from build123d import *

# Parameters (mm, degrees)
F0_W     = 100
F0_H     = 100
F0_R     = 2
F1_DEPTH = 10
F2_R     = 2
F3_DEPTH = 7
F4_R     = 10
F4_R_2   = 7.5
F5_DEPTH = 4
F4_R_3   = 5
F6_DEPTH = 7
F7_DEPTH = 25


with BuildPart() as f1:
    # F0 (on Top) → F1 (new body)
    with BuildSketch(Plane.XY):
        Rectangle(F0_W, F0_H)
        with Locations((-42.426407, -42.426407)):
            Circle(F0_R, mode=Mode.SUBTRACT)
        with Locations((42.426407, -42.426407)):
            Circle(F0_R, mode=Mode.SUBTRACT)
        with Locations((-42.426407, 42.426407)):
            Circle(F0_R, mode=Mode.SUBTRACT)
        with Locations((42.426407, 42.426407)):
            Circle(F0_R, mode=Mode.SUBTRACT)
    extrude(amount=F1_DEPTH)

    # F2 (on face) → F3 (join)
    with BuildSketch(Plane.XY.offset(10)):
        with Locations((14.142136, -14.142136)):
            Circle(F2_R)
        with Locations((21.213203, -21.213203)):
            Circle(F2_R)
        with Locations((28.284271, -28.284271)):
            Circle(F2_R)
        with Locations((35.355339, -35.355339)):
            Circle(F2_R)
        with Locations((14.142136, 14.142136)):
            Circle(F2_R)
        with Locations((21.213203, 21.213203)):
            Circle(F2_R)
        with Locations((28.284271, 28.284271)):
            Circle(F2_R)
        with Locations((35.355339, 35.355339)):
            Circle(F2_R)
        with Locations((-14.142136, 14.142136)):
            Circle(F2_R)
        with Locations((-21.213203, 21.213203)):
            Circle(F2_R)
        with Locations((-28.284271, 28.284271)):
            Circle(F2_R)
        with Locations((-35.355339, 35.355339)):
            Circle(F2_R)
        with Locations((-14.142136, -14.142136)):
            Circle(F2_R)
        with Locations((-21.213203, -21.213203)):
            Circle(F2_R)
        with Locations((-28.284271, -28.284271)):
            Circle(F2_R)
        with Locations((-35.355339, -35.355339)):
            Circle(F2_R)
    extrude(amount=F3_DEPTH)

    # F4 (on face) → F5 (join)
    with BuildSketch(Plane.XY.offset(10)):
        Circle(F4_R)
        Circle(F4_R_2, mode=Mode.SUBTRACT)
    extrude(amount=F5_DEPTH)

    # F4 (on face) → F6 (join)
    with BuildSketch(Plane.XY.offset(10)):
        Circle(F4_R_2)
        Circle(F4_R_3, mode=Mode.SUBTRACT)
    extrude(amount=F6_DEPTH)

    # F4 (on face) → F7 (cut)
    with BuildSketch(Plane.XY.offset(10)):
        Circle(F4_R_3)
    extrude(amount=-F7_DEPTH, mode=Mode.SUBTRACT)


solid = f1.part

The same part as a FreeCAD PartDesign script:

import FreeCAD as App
import Part
import Sketcher


def add_polygon(sketch, points):
    """Adds a closed chain of lines whose ends are joined by coincident constraints."""
    first, n = sketch.GeometryCount, len(points)
    for a, b in zip(points, points[1:] + points[:1]):
        sketch.addGeometry(Part.LineSegment(App.Vector(*a, 0), App.Vector(*b, 0)), False)
    for i in range(n):
        sketch.addConstraint(Sketcher.Constraint("Coincident", first + i, 2, first + (i + 1) % n, 1))

doc = App.newDocument("Part")
params = doc.addObject("Spreadsheet::Sheet", "Params")
for row, (alias, value) in enumerate([
    ("sketch1_diameter", "4 mm"),
    ("sketch1_width", "100 mm"),
    ("pad1_length", "10 mm"),
    ("sketch2_diameter", "4 mm"),
    ("pad2_length", "7 mm"),
    ("sketch3_diameter", "20 mm"),
    ("sketch3_diameter2", "15 mm"),
    ("pad3_length", "4 mm"),
    ("sketch4_diameter", "15 mm"),
    ("sketch4_diameter2", "10 mm"),
    ("pad4_length", "7 mm"),
    ("sketch5_diameter", "10 mm"),
    ("pocket1_length", "25 mm"),
], start=1):
    params.set(f"A{row}", alias)
    params.set(f"B{row}", "=" + value)
    params.setAlias(f"B{row}", alias)

body = doc.addObject("PartDesign::Body", "Body")

sketch1 = body.newObject("Sketcher::SketchObject", "Sketch")
sketch1.AttachmentSupport = (doc.getObject("XY_Plane"), [""])
sketch1.MapMode = "FlatFace"
add_polygon(sketch1, [(-50, 50), (-50, -50), (50, -50), (50, 50)])
sketch1.addGeometry(Part.Circle(App.Vector(-42.426407, -42.426407, 0), App.Vector(0, 0, 1), 2), False)
sketch1.addGeometry(Part.Circle(App.Vector(42.426407, -42.426407, 0), App.Vector(0, 0, 1), 2), False)
sketch1.addGeometry(Part.Circle(App.Vector(-42.426407, 42.426407, 0), App.Vector(0, 0, 1), 2), False)
sketch1.addGeometry(Part.Circle(App.Vector(42.426407, 42.426407, 0), App.Vector(0, 0, 1), 2), False)
sketch1.addConstraint([
    Sketcher.Constraint("Vertical", 0),
    Sketcher.Constraint("Horizontal", 1),
    Sketcher.Constraint("Vertical", 2),
    Sketcher.Constraint("Horizontal", 3),
    Sketcher.Constraint("Equal", 4, 5),
    Sketcher.Constraint("Equal", 5, 6),
    Sketcher.Constraint("Equal", 6, 7),
    Sketcher.Constraint("Symmetric", 5, 3, 6, 3, -1, 1),
    Sketcher.Constraint("Symmetric", 4, 3, 7, 3, -1, 1),
    Sketcher.Constraint("Symmetric", 0, 2, 2, 2, -1, 1),
    Sketcher.Constraint("Symmetric", 4, 3, 5, 3, -2),
    Sketcher.Constraint("Equal", 3, 0),
    Sketcher.Constraint("Diameter", 4, 4.0),
    Sketcher.Constraint("DistanceX", 1, 1, 1, 2, 100.0),
    Sketcher.Constraint("DistanceX", 4, 3, -1, 1, 42.426407),
    Sketcher.Constraint("DistanceY", 4, 3, -1, 1, 42.426407),
])
sketch1.setExpression("Constraints[16]", "Params.sketch1_diameter")
sketch1.setExpression("Constraints[17]", "Params.sketch1_width")
pad1 = body.newObject("PartDesign::Pad", "Pad")
pad1.Profile = sketch1
pad1.setExpression("Length", "Params.pad1_length")

sketch2 = body.newObject("Sketcher::SketchObject", "Sketch001")
sketch2.AttachmentSupport = (doc.getObject("XY_Plane"), [""])
sketch2.MapMode = "FlatFace"
sketch2.AttachmentOffset = App.Placement(App.Vector(0, 0, 10), App.Rotation())
sketch2.addGeometry([
    Part.Circle(App.Vector(14.142136, -14.142136, 0), App.Vector(0, 0, 1), 2),
    Part.Circle(App.Vector(21.213203, -21.213203, 0), App.Vector(0, 0, 1), 2),
    Part.Circle(App.Vector(28.284271, -28.284271, 0), App.Vector(0, 0, 1), 2),
    Part.Circle(App.Vector(35.355339, -35.355339, 0), App.Vector(0, 0, 1), 2),
    Part.Circle(App.Vector(14.142136, 14.142136, 0), App.Vector(0, 0, 1), 2),
    Part.Circle(App.Vector(21.213203, 21.213203, 0), App.Vector(0, 0, 1), 2),
    Part.Circle(App.Vector(28.284271, 28.284271, 0), App.Vector(0, 0, 1), 2),
    Part.Circle(App.Vector(35.355339, 35.355339, 0), App.Vector(0, 0, 1), 2),
    Part.Circle(App.Vector(-14.142136, 14.142136, 0), App.Vector(0, 0, 1), 2),
    Part.Circle(App.Vector(-21.213203, 21.213203, 0), App.Vector(0, 0, 1), 2),
    Part.Circle(App.Vector(-28.284271, 28.284271, 0), App.Vector(0, 0, 1), 2),
    Part.Circle(App.Vector(-35.355339, 35.355339, 0), App.Vector(0, 0, 1), 2),
    Part.Circle(App.Vector(-14.142136, -14.142136, 0), App.Vector(0, 0, 1), 2),
    Part.Circle(App.Vector(-21.213203, -21.213203, 0), App.Vector(0, 0, 1), 2),
    Part.Circle(App.Vector(-28.284271, -28.284271, 0), App.Vector(0, 0, 1), 2),
    Part.Circle(App.Vector(-35.355339, -35.355339, 0), App.Vector(0, 0, 1), 2),
], False)
sketch2.addConstraint([
    Sketcher.Constraint("Equal", 0, 1),
    Sketcher.Constraint("Equal", 1, 2),
    Sketcher.Constraint("Equal", 2, 3),
    Sketcher.Constraint("Equal", 3, 4),
    Sketcher.Constraint("Equal", 4, 5),
    Sketcher.Constraint("Equal", 5, 6),
    Sketcher.Constraint("Equal", 6, 7),
    Sketcher.Constraint("Equal", 7, 8),
    Sketcher.Constraint("Equal", 8, 9),
    Sketcher.Constraint("Equal", 9, 10),
    Sketcher.Constraint("Equal", 10, 11),
    Sketcher.Constraint("Equal", 11, 12),
    Sketcher.Constraint("Equal", 12, 13),
    Sketcher.Constraint("Equal", 13, 14),
    Sketcher.Constraint("Equal", 14, 15),
    Sketcher.Constraint("Symmetric", 0, 3, 8, 3, -1, 1),
    Sketcher.Constraint("Symmetric", 1, 3, 9, 3, -1, 1),
    Sketcher.Constraint("Symmetric", 2, 3, 10, 3, -1, 1),
    Sketcher.Constraint("Symmetric", 3, 3, 11, 3, -1, 1),
    Sketcher.Constraint("Symmetric", 4, 3, 12, 3, -1, 1),
    Sketcher.Constraint("Symmetric", 5, 3, 13, 3, -1, 1),
    Sketcher.Constraint("Symmetric", 6, 3, 14, 3, -1, 1),
    Sketcher.Constraint("Symmetric", 7, 3, 15, 3, -1, 1),
    Sketcher.Constraint("Symmetric", 4, 3, 8, 3, -2),
    Sketcher.Constraint("Symmetric", 5, 3, 9, 3, -2),
    Sketcher.Constraint("Symmetric", 6, 3, 10, 3, -2),
    Sketcher.Constraint("Symmetric", 7, 3, 11, 3, -2),
    Sketcher.Constraint("Diameter", 0, 4.0),
    Sketcher.Constraint("DistanceX", -1, 1, 2, 3, 28.284271),
    Sketcher.Constraint("DistanceY", 2, 3, -1, 1, 28.284271),
    Sketcher.Constraint("DistanceX", -1, 1, 3, 3, 35.355339),
    Sketcher.Constraint("DistanceY", 3, 3, -1, 1, 35.355339),
    Sketcher.Constraint("DistanceX", 1, 3, 2, 3, 7.071068),
    Sketcher.Constraint("DistanceY", 2, 3, 1, 3, 7.071068),
    Sketcher.Constraint("DistanceY", 1, 3, 4, 3, 35.355339),
    Sketcher.Constraint("DistanceX", 8, 3, 5, 3, 35.355339),
])
sketch2.setExpression("Constraints[27]", "Params.sketch2_diameter")
pad2 = body.newObject("PartDesign::Pad", "Pad001")
pad2.Profile = sketch2
pad2.setExpression("Length", "Params.pad2_length")

sketch3 = body.newObject("Sketcher::SketchObject", "Sketch002")
sketch3.AttachmentSupport = (doc.getObject("XY_Plane"), [""])
sketch3.MapMode = "FlatFace"
sketch3.AttachmentOffset = App.Placement(App.Vector(0, 0, 10), App.Rotation())
sketch3.addGeometry([
    Part.Circle(App.Vector(0, 0, 0), App.Vector(0, 0, 1), 10),
    Part.Circle(App.Vector(0, 0, 0), App.Vector(0, 0, 1), 7.5),
], False)
sketch3.addConstraint([
    Sketcher.Constraint("Coincident", 0, 3, -1, 1),
    Sketcher.Constraint("Coincident", 1, 3, -1, 1),
    Sketcher.Constraint("Diameter", 0, 20.0),
    Sketcher.Constraint("Diameter", 1, 15.0),
])
sketch3.setExpression("Constraints[2]", "Params.sketch3_diameter")
sketch3.setExpression("Constraints[3]", "Params.sketch3_diameter2")
pad3 = body.newObject("PartDesign::Pad", "Pad002")
pad3.Profile = sketch3
pad3.setExpression("Length", "Params.pad3_length")

sketch4 = body.newObject("Sketcher::SketchObject", "Sketch003")
sketch4.AttachmentSupport = (doc.getObject("XY_Plane"), [""])
sketch4.MapMode = "FlatFace"
sketch4.AttachmentOffset = App.Placement(App.Vector(0, 0, 10), App.Rotation())
sketch4.addGeometry([
    Part.Circle(App.Vector(0, 0, 0), App.Vector(0, 0, 1), 7.5),
    Part.Circle(App.Vector(0, 0, 0), App.Vector(0, 0, 1), 5),
], False)
sketch4.addConstraint([
    Sketcher.Constraint("Coincident", 0, 3, -1, 1),
    Sketcher.Constraint("Coincident", 1, 3, -1, 1),
    Sketcher.Constraint("Diameter", 0, 15.0),
    Sketcher.Constraint("Diameter", 1, 10.0),
])
sketch4.setExpression("Constraints[2]", "Params.sketch4_diameter")
sketch4.setExpression("Constraints[3]", "Params.sketch4_diameter2")
pad4 = body.newObject("PartDesign::Pad", "Pad003")
pad4.Profile = sketch4
pad4.setExpression("Length", "Params.pad4_length")

sketch5 = body.newObject("Sketcher::SketchObject", "Sketch004")
sketch5.AttachmentSupport = (doc.getObject("XY_Plane"), [""])
sketch5.MapMode = "FlatFace"
sketch5.AttachmentOffset = App.Placement(App.Vector(0, 0, 10), App.Rotation())
sketch5.addGeometry(Part.Circle(App.Vector(0, 0, 0), App.Vector(0, 0, 1), 5), False)
sketch5.addConstraint([
    Sketcher.Constraint("Coincident", 0, 3, -1, 1),
    Sketcher.Constraint("Diameter", 0, 10.0),
])
sketch5.setExpression("Constraints[1]", "Params.sketch5_diameter")
pocket1 = body.newObject("PartDesign::Pocket", "Pocket")
pocket1.Profile = sketch5
pocket1.setExpression("Length", "Params.pocket1_length")

doc.recompute()
